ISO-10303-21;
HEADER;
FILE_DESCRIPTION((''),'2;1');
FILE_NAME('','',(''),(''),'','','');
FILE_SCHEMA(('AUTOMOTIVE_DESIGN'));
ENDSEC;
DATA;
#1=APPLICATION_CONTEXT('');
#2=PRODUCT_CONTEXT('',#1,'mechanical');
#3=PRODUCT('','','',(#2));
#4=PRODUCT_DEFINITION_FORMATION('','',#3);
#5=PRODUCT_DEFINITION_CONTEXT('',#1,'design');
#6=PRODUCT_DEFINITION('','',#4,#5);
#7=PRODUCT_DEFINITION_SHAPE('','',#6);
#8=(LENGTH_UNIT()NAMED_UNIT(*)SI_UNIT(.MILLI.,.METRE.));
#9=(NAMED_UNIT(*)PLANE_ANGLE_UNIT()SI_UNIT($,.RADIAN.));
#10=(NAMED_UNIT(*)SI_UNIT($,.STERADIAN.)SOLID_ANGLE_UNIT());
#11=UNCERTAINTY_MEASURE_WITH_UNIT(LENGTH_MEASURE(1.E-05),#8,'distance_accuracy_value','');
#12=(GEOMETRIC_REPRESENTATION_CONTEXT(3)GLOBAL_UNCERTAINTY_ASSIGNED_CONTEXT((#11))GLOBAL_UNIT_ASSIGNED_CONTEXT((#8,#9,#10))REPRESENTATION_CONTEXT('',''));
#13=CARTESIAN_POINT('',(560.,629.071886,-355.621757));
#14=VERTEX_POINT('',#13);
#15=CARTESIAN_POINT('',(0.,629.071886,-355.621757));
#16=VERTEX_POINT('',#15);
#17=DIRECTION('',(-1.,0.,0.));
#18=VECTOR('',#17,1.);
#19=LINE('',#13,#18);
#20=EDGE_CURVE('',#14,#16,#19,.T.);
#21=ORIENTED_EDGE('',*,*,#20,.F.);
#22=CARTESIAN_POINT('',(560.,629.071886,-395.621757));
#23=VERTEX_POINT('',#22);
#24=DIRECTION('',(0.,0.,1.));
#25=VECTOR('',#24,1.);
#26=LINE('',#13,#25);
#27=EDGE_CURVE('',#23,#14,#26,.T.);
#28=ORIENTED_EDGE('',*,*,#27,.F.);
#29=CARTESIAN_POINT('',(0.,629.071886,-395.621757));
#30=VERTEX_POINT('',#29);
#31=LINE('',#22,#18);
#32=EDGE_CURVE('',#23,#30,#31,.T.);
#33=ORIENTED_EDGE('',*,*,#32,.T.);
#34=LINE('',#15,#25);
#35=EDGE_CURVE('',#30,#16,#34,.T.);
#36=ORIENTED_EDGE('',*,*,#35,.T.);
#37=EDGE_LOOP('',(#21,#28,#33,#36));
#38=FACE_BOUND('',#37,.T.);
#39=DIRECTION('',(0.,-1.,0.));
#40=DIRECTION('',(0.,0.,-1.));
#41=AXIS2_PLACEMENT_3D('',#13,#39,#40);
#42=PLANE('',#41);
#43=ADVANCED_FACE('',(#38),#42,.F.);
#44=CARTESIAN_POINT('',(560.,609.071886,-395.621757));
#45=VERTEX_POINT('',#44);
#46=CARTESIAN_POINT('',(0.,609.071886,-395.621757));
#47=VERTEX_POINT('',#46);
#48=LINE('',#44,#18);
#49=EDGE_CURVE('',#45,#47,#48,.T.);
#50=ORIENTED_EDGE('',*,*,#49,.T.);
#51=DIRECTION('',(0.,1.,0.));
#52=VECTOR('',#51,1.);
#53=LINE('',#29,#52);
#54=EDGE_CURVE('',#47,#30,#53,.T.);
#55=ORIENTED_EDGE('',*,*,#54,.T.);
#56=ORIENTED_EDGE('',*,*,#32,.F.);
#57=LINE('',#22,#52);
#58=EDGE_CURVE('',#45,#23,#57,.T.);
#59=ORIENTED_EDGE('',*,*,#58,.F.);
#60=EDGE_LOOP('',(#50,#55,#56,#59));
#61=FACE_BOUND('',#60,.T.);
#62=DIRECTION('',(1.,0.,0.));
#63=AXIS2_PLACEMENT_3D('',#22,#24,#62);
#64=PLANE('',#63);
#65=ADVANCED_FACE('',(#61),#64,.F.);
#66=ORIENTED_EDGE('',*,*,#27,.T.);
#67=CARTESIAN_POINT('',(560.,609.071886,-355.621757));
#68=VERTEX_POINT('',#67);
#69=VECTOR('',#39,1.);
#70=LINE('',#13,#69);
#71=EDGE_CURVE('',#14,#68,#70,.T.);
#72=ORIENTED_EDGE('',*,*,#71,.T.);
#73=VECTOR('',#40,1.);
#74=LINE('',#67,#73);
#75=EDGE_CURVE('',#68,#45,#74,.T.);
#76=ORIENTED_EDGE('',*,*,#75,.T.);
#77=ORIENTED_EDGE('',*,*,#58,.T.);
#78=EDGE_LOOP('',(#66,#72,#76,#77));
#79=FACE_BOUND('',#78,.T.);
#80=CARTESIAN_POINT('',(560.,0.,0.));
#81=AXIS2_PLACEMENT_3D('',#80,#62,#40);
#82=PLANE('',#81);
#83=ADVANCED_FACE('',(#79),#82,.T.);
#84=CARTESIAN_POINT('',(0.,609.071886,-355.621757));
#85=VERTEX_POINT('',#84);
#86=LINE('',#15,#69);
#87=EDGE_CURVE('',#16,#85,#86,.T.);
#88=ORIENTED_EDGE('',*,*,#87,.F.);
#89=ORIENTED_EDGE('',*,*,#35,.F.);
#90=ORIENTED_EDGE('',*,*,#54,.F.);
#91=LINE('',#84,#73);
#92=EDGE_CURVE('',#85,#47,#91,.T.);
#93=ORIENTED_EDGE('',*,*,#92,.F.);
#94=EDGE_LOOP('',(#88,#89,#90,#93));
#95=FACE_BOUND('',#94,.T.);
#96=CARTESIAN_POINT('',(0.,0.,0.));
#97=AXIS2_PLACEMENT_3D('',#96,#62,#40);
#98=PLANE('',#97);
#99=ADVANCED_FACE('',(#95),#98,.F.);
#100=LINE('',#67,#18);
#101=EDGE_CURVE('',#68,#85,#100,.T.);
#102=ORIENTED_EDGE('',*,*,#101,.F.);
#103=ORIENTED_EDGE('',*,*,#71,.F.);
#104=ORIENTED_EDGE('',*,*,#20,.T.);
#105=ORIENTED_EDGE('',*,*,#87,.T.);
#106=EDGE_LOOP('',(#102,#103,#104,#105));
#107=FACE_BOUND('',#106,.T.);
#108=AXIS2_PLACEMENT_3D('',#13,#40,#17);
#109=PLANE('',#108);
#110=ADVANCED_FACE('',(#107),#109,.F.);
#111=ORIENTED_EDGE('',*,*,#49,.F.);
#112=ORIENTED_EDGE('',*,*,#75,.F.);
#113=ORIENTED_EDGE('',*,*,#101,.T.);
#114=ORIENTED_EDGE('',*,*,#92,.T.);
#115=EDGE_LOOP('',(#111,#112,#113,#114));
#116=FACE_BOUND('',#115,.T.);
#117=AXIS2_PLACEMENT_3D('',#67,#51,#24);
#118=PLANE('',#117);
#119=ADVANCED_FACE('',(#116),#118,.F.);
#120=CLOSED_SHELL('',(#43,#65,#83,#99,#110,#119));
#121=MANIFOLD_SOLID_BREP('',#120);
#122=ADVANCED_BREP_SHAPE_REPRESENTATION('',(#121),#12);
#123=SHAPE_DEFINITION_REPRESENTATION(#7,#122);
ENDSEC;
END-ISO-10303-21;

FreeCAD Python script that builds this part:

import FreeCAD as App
import Part
import Sketcher

V = App.Vector


def add_polygon(sketch, points):
    """Adds a closed chain of lines whose ends are joined by coincident constraints."""
    first, n = sketch.GeometryCount, len(points)
    for a, b in zip(points, points[1:] + points[:1]):
        sketch.addGeometry(Part.LineSegment(App.Vector(*a, 0), App.Vector(*b, 0)), False)
    for i in range(n):
        sketch.addConstraint(Sketcher.Constraint("Coincident", first + i, 2, first + (i + 1) % n, 1))

doc = App.newDocument("Part")
body = doc.addObject("PartDesign::Body", "Body")

sketch1 = body.newObject("Sketcher::SketchObject", "Sketch")
sketch1.AttachmentSupport = (doc.getObject("YZ_Plane"), [""])
sketch1.MapMode = "FlatFace"
add_polygon(sketch1, [(629, -356), (609, -356), (609, -396), (629, -396)])
sketch1.addConstraint([
    Sketcher.Constraint("Horizontal", 0),
    Sketcher.Constraint("Vertical", 1),
    Sketcher.Constraint("Horizontal", 2),
    Sketcher.Constraint("Vertical", 3),
    Sketcher.Constraint("DistanceX", 0, 2, 0, 1, 20.0),
    Sketcher.Constraint("DistanceY", 1, 2, 1, 1, 40.0),
    Sketcher.Constraint("DistanceX", -1, 1, 0, 2, 609.071886),
    Sketcher.Constraint("DistanceY", 0, 2, -1, 1, 355.621757),
])
pad1 = body.newObject("PartDesign::Pad", "Pad")
pad1.Profile = sketch1
pad1.Length = 560

doc.recompute()
